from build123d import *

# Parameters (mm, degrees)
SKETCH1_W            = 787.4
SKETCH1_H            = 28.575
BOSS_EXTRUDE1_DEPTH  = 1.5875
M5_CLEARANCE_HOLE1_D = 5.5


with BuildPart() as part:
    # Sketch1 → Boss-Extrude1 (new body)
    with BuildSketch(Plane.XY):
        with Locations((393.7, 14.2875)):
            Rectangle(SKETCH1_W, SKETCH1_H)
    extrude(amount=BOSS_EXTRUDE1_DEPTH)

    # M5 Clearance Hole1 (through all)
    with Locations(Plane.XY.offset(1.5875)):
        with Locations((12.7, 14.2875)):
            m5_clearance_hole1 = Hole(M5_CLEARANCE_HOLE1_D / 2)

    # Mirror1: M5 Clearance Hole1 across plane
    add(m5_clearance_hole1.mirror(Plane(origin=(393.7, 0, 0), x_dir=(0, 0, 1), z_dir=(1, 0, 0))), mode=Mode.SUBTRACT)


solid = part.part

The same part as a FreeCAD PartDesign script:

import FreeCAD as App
import Part
import Sketcher
Q = App.Units.Quantity


def add_polygon(sketch, points):
    """Adds a closed chain of lines whose ends are joined by coincident constraints."""
    first, n = sketch.GeometryCount, len(points)
    for a, b in zip(points, points[1:] + points[:1]):
        sketch.addGeometry(Part.LineSegment(App.Vector(*a, 0), App.Vector(*b, 0)), False)
    for i in range(n):
        sketch.addConstraint(Sketcher.Constraint("Coincident", first + i, 2, first + (i + 1) % n, 1))

doc = App.newDocument("Part")
body = doc.addObject("PartDesign::Body", "Body")

# Sketch on XY plane
sketch1 = body.newObject("Sketcher::SketchObject", "Sketch")
sketch1.AttachmentSupport = (doc.getObject("XY_Plane"), [""])
sketch1.MapMode = "FlatFace"
add_polygon(sketch1, [(0, 28.575), (0, 0), (787.4, 0), (787.4, 28.575)])  # lines 0-3
sketch1.addConstraint(Sketcher.Constraint("Vertical", 0))
sketch1.addConstraint(Sketcher.Constraint("Horizontal", 1))
sketch1.addConstraint(Sketcher.Constraint("Vertical", 2))
sketch1.addConstraint(Sketcher.Constraint("Horizontal", 3))
sketch1.addConstraint(Sketcher.Constraint("Coincident", 0, 2, -1, 1))
sketch1.addConstraint(Sketcher.Constraint("DistanceX", 1, 1, 1, 2, Q("31 in")))
sketch1.addConstraint(Sketcher.Constraint("DistanceY", 0, 2, 0, 1, Q("1.125 in")))
pad1 = body.newObject("PartDesign::Pad", "Pad")
pad1.Profile = sketch1
pad1.Length = Q("0.0625 in")

# Sketch on XY plane
sketch2 = body.newObject("Sketcher::SketchObject", "Sketch001")
sketch2.AttachmentSupport = (doc.getObject("XY_Plane"), [""])
sketch2.MapMode = "FlatFace"
sketch2.AttachmentOffset = App.Placement(App.Vector(0, 0, 0.0625 * 25.4), App.Rotation())
sketch2.addGeometry(Part.Circle(App.Vector(12.7, 14.2875, 0), App.Vector(0, 0, 1), 2.75), False)
sketch2.addConstraint(Sketcher.Constraint("DistanceX", -1, 1, 0, 3, Q("0.5 in")))
sketch2.addConstraint(Sketcher.Constraint("Diameter", 0, Q("5.5 mm")))
sketch2.addConstraint(Sketcher.Constraint("DistanceY", -1, 1, 0, 3, Q("0.5625 in")))
doc.recompute()
hole = body.newObject("PartDesign::Hole", "Hole")
hole.Profile = sketch2
hole.ThreadType = "None"
hole.Diameter = 5.5
hole.DepthType = "ThroughAll"
doc.recompute()

datumplane = body.newObject("PartDesign::Plane", "DatumPlane")
datumplane.AttachmentSupport = (doc.getObject("YZ_Plane"), [""])
datumplane.MapMode = "FlatFace"
datumplane.AttachmentOffset = App.Placement(App.Vector(0, 0, 15.5 * 25.4), App.Rotation())
mirrored = body.newObject("PartDesign::Mirrored", "Mirrored")
mirrored.Originals = [hole]
mirrored.MirrorPlane = (datumplane, [""])
body.Tip = mirrored

doc.recompute()
